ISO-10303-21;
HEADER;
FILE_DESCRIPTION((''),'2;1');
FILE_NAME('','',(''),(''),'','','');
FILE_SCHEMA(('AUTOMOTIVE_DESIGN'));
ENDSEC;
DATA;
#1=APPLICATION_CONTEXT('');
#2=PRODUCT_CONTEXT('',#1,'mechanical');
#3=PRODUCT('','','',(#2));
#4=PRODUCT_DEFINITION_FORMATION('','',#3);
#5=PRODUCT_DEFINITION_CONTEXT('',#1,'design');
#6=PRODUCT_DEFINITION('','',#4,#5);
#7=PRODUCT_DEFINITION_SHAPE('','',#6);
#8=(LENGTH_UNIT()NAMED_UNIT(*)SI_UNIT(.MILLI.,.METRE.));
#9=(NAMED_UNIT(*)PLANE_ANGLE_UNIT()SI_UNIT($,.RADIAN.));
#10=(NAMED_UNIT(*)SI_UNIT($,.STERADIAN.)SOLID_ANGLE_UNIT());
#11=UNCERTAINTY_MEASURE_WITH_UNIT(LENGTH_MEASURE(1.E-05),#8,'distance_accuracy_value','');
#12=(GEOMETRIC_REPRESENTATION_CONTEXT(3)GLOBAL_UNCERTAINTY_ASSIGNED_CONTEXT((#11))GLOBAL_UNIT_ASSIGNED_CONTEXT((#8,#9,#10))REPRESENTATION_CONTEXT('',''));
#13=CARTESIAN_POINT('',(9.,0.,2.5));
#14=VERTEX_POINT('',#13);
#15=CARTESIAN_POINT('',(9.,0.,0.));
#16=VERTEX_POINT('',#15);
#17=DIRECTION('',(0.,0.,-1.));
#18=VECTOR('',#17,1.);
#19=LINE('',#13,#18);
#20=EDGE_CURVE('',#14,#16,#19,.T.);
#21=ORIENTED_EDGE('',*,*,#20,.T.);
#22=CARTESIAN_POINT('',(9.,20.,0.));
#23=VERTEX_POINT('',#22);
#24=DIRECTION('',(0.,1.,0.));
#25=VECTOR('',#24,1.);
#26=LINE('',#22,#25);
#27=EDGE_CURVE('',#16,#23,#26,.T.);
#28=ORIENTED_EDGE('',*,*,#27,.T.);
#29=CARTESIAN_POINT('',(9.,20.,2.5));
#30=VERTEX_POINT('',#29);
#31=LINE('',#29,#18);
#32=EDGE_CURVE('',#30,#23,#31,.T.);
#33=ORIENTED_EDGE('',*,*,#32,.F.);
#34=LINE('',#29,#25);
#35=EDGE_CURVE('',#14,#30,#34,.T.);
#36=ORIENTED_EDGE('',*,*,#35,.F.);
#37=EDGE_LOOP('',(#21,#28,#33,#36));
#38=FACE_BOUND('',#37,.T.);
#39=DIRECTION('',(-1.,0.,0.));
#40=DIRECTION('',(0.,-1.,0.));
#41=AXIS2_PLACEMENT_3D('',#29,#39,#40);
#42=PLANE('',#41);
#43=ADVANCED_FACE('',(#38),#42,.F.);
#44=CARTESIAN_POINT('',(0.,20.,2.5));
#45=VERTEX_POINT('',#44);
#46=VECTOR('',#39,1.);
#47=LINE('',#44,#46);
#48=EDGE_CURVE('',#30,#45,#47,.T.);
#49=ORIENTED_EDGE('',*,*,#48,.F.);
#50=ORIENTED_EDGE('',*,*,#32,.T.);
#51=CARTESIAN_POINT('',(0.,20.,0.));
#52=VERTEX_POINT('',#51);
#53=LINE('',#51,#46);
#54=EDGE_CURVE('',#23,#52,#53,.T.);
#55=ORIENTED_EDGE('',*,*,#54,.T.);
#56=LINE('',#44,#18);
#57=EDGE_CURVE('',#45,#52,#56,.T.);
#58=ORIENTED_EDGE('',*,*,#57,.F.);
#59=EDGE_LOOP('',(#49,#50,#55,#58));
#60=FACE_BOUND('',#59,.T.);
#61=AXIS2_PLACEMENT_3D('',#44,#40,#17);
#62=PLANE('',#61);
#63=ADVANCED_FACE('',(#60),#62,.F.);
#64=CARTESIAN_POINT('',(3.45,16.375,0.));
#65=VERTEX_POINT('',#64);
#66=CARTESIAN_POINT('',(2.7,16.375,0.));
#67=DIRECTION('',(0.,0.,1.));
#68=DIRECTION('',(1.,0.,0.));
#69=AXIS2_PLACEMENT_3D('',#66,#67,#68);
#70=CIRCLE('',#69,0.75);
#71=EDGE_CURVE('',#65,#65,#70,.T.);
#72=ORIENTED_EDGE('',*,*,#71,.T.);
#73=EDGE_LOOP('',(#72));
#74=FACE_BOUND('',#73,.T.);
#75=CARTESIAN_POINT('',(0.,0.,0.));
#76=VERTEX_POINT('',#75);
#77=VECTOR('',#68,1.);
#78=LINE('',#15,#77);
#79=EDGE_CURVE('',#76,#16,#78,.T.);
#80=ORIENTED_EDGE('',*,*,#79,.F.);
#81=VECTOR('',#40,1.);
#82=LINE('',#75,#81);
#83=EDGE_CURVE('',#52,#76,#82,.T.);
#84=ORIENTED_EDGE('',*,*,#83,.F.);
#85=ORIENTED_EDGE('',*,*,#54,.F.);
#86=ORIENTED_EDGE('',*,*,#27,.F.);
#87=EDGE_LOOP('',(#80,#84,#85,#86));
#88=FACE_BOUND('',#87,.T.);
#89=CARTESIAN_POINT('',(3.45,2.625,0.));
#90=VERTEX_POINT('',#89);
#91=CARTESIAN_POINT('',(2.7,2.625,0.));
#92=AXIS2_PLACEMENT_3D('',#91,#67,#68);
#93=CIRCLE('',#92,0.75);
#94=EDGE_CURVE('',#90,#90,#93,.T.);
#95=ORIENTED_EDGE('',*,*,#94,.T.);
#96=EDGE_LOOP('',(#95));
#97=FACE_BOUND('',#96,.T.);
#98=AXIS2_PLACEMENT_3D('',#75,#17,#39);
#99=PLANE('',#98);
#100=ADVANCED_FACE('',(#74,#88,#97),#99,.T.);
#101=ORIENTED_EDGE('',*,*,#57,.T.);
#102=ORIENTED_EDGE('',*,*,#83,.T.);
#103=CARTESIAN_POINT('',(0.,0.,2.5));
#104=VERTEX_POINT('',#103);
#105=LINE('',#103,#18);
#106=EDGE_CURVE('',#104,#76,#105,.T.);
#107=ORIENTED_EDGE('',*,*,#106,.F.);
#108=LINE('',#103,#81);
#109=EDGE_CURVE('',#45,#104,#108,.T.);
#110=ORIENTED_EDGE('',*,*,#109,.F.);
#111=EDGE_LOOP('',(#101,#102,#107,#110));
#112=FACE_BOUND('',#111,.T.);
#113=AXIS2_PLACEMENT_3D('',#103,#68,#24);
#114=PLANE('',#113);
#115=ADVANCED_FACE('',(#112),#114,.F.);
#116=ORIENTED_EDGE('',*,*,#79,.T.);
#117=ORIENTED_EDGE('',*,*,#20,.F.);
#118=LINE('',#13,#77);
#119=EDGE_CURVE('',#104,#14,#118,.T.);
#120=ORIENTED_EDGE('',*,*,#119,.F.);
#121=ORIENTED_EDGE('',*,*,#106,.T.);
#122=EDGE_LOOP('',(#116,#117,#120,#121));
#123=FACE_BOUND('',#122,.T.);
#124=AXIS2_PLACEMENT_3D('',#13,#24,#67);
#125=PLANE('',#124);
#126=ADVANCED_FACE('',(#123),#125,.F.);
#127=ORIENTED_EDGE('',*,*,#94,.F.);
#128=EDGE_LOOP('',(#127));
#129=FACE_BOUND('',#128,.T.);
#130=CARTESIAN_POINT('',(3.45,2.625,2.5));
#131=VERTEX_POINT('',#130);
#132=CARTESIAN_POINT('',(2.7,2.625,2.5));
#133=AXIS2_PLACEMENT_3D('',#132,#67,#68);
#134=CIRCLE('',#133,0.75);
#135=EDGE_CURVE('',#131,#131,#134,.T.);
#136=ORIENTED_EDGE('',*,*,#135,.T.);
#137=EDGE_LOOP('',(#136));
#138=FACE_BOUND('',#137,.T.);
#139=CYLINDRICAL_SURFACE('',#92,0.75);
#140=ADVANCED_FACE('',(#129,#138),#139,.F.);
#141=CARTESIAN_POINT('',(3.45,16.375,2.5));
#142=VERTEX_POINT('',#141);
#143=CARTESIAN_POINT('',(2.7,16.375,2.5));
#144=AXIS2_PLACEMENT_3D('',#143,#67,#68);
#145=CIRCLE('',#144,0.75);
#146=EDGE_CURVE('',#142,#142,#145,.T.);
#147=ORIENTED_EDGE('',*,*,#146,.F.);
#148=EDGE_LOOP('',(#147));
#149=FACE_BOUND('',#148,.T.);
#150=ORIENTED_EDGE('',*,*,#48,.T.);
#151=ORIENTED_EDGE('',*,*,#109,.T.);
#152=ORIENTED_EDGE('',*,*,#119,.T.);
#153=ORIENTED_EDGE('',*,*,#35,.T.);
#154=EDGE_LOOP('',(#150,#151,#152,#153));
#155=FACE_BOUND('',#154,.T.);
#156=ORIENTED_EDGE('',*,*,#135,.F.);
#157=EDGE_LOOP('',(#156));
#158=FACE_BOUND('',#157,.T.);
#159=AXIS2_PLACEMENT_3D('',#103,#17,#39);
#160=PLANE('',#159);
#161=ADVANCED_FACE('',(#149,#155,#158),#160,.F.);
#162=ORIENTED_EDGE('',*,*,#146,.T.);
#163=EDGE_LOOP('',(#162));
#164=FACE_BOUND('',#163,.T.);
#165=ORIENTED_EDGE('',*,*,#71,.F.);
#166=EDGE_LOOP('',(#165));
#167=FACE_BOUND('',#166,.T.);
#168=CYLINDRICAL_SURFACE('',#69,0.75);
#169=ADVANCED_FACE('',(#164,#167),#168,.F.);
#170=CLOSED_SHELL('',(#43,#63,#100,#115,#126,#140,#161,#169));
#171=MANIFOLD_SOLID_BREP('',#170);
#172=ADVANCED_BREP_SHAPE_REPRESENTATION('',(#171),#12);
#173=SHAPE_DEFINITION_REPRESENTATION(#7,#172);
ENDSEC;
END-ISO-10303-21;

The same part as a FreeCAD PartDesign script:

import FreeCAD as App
import Part
import Sketcher
from FreeCAD import Vector
Q = App.Units.Quantity


def add_polygon(sketch, points):
    """Adds a closed chain of lines whose ends are joined by coincident constraints."""
    first, n = sketch.GeometryCount, len(points)
    for a, b in zip(points, points[1:] + points[:1]):
        sketch.addGeometry(Part.LineSegment(App.Vector(*a, 0), App.Vector(*b, 0)), False)
    for i in range(n):
        sketch.addConstraint(Sketcher.Constraint("Coincident", first + i, 2, first + (i + 1) % n, 1))

doc = App.newDocument("Part")
body = doc.addObject("PartDesign::Body", "Body")

# Sketch on XY plane
sketch1 = doc.addObject("Sketcher::SketchObject", "Sketch")
body.addObject(sketch1)
sketch1.AttachmentSupport = (doc.XY_Plane, [""])
sketch1.MapMode = "FlatFace"
add_polygon(sketch1, [(0, 20), (0, 0), (9, 0), (9, 20)])  # lines 0-3
sketch1.addConstraint([
    Sketcher.Constraint("Vertical", 0),
    Sketcher.Constraint("Horizontal", 1),
    Sketcher.Constraint("Vertical", 2),
    Sketcher.Constraint("Horizontal", 3),
    Sketcher.Constraint("Coincident", 0, 2, -1, 1),
    Sketcher.Constraint("DistanceX", 1, 1, 1, 2, Q("9 mm")),
    Sketcher.Constraint("DistanceY", 0, 2, 0, 1, Q("20 mm")),
])
pad1 = doc.addObject("PartDesign::Pad", "Pad")
body.addObject(pad1)
pad1.Profile = sketch1
pad1.Length = 2.5

# Sketch on XY plane
sketch2 = doc.addObject("Sketcher::SketchObject", "Sketch001")
body.addObject(sketch2)
sketch2.AttachmentSupport = (doc.XY_Plane, [""])
sketch2.MapMode = "FlatFace"
sketch2.AttachmentOffset = App.Placement(Vector(0, 0, 2.5), App.Rotation())
sketch2.addGeometry([
    Part.Circle(Vector(2.7, 16.4, 0), Vector(0, 0, 1), 0.8),
    Part.Circle(Vector(2.7, 2.6, 0), Vector(0, 0, 1), 0.8),
], False)
sketch2.addConstraint([
    Sketcher.Constraint("Equal", 0, 1),
    Sketcher.Constraint("Vertical", 0, 3, 1, 3),
    Sketcher.Constraint("Diameter", 0, Q("1.5 mm")),
    Sketcher.Constraint("DistanceX", -1, 1, 0, 3, Q("2.7 mm")),
    Sketcher.Constraint("DistanceY", 1, 3, 0, 3, Q("13.75 mm")),
    Sketcher.Constraint("DistanceY", -1, 1, 0, 3, Q("16.375 mm")),
])
pocket1 = doc.addObject("PartDesign::Pocket", "Pocket")
body.addObject(pocket1)
pocket1.Profile = sketch2
pocket1.Type = "ThroughAll"

doc.recompute()
